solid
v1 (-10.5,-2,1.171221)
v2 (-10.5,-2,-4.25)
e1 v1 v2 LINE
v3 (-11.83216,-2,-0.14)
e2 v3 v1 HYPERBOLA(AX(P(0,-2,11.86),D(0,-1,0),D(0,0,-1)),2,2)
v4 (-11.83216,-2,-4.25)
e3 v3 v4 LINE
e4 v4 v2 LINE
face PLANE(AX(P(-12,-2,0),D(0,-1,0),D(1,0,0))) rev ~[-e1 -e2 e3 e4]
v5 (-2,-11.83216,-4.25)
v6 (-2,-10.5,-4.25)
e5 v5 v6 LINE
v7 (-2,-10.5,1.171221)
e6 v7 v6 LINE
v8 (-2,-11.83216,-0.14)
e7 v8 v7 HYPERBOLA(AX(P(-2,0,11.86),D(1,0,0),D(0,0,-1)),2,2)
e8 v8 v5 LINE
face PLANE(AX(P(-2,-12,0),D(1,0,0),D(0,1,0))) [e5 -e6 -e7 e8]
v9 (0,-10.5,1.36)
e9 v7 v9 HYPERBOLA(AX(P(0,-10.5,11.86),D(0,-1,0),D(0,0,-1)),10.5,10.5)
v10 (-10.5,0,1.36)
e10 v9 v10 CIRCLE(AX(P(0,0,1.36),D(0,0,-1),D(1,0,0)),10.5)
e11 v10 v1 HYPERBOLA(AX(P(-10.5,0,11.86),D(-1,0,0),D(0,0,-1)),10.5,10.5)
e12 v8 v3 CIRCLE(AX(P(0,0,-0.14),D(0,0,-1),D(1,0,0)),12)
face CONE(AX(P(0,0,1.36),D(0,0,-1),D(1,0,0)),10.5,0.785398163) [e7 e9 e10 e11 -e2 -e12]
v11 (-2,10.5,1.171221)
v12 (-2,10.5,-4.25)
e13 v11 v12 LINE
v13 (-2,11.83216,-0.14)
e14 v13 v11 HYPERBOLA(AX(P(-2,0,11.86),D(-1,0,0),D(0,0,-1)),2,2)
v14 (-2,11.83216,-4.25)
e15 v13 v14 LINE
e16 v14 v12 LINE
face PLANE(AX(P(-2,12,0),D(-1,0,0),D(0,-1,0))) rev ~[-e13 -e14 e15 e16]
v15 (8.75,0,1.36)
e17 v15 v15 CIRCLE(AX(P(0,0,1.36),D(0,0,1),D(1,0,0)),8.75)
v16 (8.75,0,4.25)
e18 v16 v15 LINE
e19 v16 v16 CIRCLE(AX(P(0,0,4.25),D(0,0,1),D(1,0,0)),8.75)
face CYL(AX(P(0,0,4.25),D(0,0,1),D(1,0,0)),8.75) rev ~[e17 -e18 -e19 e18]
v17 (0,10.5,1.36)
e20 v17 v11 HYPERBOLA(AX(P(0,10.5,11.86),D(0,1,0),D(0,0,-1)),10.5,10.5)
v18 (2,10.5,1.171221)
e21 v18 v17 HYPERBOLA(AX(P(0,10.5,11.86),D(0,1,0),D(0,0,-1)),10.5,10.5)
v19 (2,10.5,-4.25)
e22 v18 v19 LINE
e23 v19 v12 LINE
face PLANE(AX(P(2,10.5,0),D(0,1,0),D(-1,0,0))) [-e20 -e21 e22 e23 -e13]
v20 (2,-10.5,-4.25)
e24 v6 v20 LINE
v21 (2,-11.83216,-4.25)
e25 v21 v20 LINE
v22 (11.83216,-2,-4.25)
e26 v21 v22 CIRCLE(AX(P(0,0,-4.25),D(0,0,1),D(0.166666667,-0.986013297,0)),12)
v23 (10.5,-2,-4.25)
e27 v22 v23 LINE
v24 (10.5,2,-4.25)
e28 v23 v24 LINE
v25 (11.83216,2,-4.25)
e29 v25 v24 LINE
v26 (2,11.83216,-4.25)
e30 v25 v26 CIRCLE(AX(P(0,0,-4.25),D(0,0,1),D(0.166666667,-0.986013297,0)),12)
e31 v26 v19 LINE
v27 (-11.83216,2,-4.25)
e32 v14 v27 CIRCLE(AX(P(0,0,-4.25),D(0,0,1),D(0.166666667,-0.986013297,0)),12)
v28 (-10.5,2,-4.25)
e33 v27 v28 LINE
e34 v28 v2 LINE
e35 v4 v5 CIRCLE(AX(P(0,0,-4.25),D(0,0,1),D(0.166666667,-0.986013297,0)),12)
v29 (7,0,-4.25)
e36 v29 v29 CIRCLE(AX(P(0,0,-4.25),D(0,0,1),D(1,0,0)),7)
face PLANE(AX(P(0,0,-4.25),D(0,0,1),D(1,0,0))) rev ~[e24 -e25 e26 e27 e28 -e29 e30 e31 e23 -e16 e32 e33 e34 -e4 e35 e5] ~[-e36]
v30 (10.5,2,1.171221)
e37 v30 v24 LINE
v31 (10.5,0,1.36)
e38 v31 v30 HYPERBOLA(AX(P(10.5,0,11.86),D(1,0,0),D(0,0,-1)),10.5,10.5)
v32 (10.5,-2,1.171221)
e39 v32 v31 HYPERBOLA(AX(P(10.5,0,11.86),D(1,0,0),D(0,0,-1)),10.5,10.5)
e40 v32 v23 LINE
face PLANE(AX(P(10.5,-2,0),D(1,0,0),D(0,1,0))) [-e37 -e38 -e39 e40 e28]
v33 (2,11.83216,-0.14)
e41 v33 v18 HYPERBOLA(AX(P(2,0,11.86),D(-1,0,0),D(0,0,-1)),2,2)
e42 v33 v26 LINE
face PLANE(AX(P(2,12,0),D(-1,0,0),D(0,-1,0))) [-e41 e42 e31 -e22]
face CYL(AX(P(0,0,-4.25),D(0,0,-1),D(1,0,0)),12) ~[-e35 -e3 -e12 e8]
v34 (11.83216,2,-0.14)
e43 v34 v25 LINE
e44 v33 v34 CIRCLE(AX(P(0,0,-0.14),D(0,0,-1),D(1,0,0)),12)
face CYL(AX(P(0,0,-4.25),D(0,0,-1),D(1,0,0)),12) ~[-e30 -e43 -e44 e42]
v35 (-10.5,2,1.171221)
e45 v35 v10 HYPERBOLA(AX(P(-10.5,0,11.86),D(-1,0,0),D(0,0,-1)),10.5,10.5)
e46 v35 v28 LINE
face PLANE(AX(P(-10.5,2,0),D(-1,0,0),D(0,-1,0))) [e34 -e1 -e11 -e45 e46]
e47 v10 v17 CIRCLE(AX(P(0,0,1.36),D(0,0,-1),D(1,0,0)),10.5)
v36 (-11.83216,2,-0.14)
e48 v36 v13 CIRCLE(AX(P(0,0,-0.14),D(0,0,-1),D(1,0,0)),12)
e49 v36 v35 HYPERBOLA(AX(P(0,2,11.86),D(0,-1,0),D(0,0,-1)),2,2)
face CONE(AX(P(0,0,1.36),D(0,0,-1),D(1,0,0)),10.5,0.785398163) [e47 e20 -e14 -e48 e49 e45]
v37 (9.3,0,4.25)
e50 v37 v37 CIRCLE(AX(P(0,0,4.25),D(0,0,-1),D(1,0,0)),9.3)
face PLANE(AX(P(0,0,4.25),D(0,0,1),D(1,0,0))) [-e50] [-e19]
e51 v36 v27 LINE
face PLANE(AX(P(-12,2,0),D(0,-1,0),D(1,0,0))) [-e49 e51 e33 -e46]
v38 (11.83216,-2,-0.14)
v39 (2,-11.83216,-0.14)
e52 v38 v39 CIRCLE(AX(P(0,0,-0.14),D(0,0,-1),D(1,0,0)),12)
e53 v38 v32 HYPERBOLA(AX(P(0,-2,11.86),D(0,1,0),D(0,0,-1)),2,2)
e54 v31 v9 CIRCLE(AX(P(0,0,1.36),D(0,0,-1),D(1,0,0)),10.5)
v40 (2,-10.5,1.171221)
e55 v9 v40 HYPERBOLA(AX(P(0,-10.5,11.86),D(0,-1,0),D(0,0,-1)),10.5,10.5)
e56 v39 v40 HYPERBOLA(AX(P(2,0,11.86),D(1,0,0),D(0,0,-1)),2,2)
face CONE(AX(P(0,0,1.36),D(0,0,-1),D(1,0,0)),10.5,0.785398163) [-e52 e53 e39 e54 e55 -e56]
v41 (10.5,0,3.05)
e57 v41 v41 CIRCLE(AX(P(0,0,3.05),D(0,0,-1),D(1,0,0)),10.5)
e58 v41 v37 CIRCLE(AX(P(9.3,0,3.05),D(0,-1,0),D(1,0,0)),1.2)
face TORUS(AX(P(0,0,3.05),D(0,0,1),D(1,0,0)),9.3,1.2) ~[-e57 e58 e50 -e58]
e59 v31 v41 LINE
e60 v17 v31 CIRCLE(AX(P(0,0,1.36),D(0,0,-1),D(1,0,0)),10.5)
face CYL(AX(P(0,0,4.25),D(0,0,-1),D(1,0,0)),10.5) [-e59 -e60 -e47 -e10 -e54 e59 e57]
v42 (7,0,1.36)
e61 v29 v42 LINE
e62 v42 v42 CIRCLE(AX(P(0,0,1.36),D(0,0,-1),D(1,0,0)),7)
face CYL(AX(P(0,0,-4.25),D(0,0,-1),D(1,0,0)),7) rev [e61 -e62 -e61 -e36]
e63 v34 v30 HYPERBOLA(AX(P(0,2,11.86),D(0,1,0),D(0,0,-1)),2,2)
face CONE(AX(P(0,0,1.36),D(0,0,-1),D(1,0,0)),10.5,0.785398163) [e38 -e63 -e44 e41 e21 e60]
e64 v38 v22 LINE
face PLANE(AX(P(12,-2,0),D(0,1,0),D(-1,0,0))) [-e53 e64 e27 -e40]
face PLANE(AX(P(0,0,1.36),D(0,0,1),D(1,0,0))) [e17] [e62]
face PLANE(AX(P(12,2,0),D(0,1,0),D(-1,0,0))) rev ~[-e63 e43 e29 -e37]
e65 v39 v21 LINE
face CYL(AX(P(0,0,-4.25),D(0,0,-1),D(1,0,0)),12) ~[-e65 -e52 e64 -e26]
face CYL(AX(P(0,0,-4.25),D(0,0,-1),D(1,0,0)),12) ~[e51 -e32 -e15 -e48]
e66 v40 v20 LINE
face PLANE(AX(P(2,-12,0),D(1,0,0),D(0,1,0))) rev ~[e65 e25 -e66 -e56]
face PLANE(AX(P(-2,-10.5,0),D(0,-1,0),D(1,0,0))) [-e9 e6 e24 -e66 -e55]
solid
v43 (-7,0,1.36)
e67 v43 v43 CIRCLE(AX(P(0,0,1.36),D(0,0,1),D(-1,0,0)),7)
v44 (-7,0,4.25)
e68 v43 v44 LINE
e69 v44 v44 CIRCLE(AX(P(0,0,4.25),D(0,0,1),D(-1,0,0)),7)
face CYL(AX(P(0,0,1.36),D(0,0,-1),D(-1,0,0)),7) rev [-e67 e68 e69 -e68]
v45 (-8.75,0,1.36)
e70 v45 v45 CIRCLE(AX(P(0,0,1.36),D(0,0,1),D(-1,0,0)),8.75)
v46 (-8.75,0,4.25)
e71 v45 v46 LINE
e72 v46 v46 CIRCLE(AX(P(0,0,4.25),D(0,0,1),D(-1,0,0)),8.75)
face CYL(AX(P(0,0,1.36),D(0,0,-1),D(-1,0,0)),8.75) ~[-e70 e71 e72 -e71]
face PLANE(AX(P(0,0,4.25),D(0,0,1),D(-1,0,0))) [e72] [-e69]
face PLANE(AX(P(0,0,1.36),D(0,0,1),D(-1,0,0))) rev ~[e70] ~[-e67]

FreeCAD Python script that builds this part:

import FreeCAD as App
import Part
import Sketcher

V = App.Vector
Q = App.Units.Quantity


def edges_at(feature, points):
    """Names of the edges that pass closest to the given points."""
    edges = feature.Shape.Edges
    near = lambda p: min(range(len(edges)), key=lambda i: edges[i].distToShape(Part.Vertex(*p))[0])
    return sorted({f"Edge{near(p) + 1}" for p in points})


def add_polygon(sketch, points):
    """Adds a closed chain of lines whose ends are joined by coincident constraints."""
    first, n = sketch.GeometryCount, len(points)
    for a, b in zip(points, points[1:] + points[:1]):
        sketch.addGeometry(Part.LineSegment(App.Vector(*a, 0), App.Vector(*b, 0)), False)
    for i in range(n):
        sketch.addConstraint(Sketcher.Constraint("Coincident", first + i, 2, first + (i + 1) % n, 1))

doc = App.newDocument("Part")
body = doc.addObject("PartDesign::Body", "Body")

sketch1 = body.newObject("Sketcher::SketchObject", "Sketch")
sketch1.AttachmentSupport = (doc.getObject("XY_Plane"), [""])
sketch1.MapMode = "FlatFace"
sketch1.addGeometry([
    Part.Circle(V(0, 0, 0), V(0, 0, 1), 12),
    Part.Circle(V(0, 0, 0), V(0, 0, 1), 7),
], False)
sketch1.addConstraint([
    Sketcher.Constraint("Coincident", 0, 3, -1, 1),
    Sketcher.Constraint("Coincident", 1, 3, -1, 1),
    Sketcher.Constraint("Diameter", 0, Q("24 mm")),
    Sketcher.Constraint("Diameter", 1, Q("14 mm")),
])
pad1 = body.newObject("PartDesign::Pad", "Pad")
pad1.Profile = sketch1
pad1.Type = "TwoLengths"
pad1.Length = 4.25
pad1.Length2 = 4.25

sketch2 = body.newObject("Sketcher::SketchObject", "Sketch001")
sketch2.AttachmentSupport = (doc.getObject("XY_Plane"), [""])
sketch2.MapMode = "FlatFace"
sketch2.AttachmentOffset = App.Placement(V(0, 0, 4.25), App.Rotation())
sketch2.addGeometry([
    Part.Circle(V(0, 0, 0), V(0, 0, 1), 12),
    Part.Circle(V(0, 0, 0), V(0, 0, 1), 10),
], False)
sketch2.addConstraint([
    Sketcher.Constraint("Coincident", 0, 3, -1, 1),
    Sketcher.Constraint("Coincident", 1, 3, -1, 1),
    Sketcher.Constraint("Diameter", 0, Q("24 mm")),
    Sketcher.Constraint("Diameter", 1, Q("21 mm")),
])
pocket1 = body.newObject("PartDesign::Pocket", "Pocket")
pocket1.Profile = sketch2
pocket1.Length = 0.5

sketch3 = body.newObject("Sketcher::SketchObject", "Sketch002")
sketch3.AttachmentSupport = (doc.getObject("XY_Plane"), [""])
sketch3.MapMode = "FlatFace"
add_polygon(sketch3, [(-2, -10.5), (-2, -12), (2, -12), (2, -10.5)])
sketch3.addConstraint([
    Sketcher.Constraint("Vertical", 0),
    Sketcher.Constraint("Horizontal", 1),
    Sketcher.Constraint("Vertical", 2),
    Sketcher.Constraint("Horizontal", 3),
    Sketcher.Constraint("DistanceX", 1, 1, 1, 2, Q("4 mm")),
    Sketcher.Constraint("DistanceY", 0, 2, 0, 1, Q("1.5 mm")),
    Sketcher.Constraint("DistanceX", 0, 2, -1, 1, Q("2 mm")),
    Sketcher.Constraint("DistanceY", 0, 2, -1, 1, Q("12 mm")),
])
pocket2 = body.newObject("PartDesign::Pocket", "Pocket001")
pocket2.Profile = sketch3
pocket2.Length = 36.989284
pocket2.Midplane = True
doc.recompute()

polarpattern = body.newObject("PartDesign::PolarPattern", "PolarPattern")
polarpattern.Originals = [pocket2]
polarpattern.Axis = (doc.getObject("Z_Axis"), [""])
polarpattern.Angle = 360
polarpattern.Occurrences = 4
body.Tip = polarpattern

sketch4 = body.newObject("Sketcher::SketchObject", "Sketch003")
sketch4.AttachmentSupport = (doc.getObject("YZ_Plane"), [""])
sketch4.MapMode = "FlatFace"
add_polygon(sketch4, [(10.5, 1.4), (12, -0.1), (12, 4.2), (10.5, 4.2)])
sketch4.addConstraint([
    Sketcher.Constraint("Vertical", 1),
    Sketcher.Constraint("Horizontal", 2),
    Sketcher.Constraint("Vertical", 3),
    Sketcher.Constraint("Angle", 0, Q("-45 deg")),
    Sketcher.Constraint("DistanceX", 2, 2, 2, 1, Q("1.5 mm")),
    Sketcher.Constraint("DistanceX", -1, 1, 0, 2, Q("12 mm")),
    Sketcher.Constraint("DistanceY", 1, 1, 1, 2, Q("4.39 mm")),
    Sketcher.Constraint("DistanceY", 0, 2, -1, 1, Q("0.14 mm")),
])
groove = body.newObject("PartDesign::Groove", "Groove")
groove.Profile = sketch4
groove.ReferenceAxis = (sketch4, ["V_Axis"])
groove.Angle = 360
doc.recompute()

fillet = body.newObject("PartDesign::Fillet", "Fillet")
fillet.Base = (groove, edges_at(groove, [(-10.5, 0, 4.25)]))
fillet.Radius = 1.2

sketch5 = body.newObject("Sketcher::SketchObject", "Sketch004")
sketch5.AttachmentSupport = (doc.getObject("XY_Plane"), [""])
sketch5.MapMode = "FlatFace"
sketch5.AttachmentOffset = App.Placement(V(0, 0, 4.25), App.Rotation())
sketch5.addGeometry(Part.Circle(V(0, 0, 0), V(0, 0, 1), 9), False)
sketch5.addConstraint([
    Sketcher.Constraint("Coincident", 0, 3, -1, 1),
    Sketcher.Constraint("Diameter", 0, Q("17.5 mm")),
])
pocket3 = body.newObject("PartDesign::Pocket", "Pocket002")
pocket3.Profile = sketch5
pocket3.Length = 2.89
body2 = doc.addObject("PartDesign::Body", "Body001")

sketch6 = body2.newObject("Sketcher::SketchObject", "Sketch005")
sketch6.AttachmentSupport = (doc.getObject("XY_Plane001"), [""])
sketch6.MapMode = "FlatFace"
sketch6.AttachmentOffset = App.Placement(V(0, 0, 1.36), App.Rotation())
sketch6.addGeometry([
    Part.Circle(V(0, 0, 0), V(0, 0, 1), 9),
    Part.Circle(V(0, 0, 0), V(0, 0, 1), 7),
], False)
sketch6.addConstraint([
    Sketcher.Constraint("Coincident", 0, 3, -1, 1),
    Sketcher.Constraint("Coincident", 1, 3, -1, 1),
    Sketcher.Constraint("Diameter", 1, Q("14 mm")),
    Sketcher.Constraint("Diameter", 0, Q("17.5 mm")),
])
pad2 = body2.newObject("PartDesign::Pad", "Pad001")
pad2.Profile = sketch6
pad2.Length = 2.89

doc.recompute()
